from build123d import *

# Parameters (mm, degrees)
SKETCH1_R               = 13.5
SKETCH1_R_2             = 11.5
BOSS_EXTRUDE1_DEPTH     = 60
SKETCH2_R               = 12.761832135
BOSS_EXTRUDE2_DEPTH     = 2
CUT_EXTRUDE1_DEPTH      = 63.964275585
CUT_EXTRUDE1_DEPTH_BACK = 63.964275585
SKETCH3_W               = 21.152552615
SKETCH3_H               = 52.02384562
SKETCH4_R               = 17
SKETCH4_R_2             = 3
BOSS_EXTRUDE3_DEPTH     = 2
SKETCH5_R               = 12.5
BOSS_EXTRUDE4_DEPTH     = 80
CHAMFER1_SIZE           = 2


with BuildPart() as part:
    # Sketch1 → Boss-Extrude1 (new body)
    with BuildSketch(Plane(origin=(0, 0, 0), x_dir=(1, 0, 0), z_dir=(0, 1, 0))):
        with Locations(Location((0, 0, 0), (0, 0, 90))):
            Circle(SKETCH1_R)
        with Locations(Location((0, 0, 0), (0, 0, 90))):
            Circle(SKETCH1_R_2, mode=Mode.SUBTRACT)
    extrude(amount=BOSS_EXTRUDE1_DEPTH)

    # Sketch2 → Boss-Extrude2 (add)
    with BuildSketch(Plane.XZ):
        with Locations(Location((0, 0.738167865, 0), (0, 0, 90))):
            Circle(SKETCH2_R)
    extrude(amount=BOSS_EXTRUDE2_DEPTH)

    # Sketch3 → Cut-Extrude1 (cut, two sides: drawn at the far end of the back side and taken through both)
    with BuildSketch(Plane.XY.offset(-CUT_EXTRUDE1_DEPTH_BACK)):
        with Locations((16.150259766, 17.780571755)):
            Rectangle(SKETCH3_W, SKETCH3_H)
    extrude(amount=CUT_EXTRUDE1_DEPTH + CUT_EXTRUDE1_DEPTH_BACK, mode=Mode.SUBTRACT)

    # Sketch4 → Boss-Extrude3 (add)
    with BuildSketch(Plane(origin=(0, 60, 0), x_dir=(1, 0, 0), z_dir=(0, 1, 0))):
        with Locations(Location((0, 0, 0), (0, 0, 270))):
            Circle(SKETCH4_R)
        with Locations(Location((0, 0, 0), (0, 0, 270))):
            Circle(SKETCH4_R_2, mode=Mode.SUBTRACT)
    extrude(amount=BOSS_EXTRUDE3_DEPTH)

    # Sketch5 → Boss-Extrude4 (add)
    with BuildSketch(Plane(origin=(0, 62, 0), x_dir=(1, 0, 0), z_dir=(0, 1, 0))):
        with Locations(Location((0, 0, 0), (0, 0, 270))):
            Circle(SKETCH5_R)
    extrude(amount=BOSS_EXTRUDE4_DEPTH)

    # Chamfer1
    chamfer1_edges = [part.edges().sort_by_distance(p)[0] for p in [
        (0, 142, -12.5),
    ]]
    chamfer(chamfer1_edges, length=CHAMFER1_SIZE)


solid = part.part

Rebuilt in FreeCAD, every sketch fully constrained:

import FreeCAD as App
import Part
import Sketcher


def edges_at(feature, points):
    """Names of the edges that pass closest to the given points."""
    edges = feature.Shape.Edges
    near = lambda p: min(range(len(edges)), key=lambda i: edges[i].distToShape(Part.Vertex(*p))[0])
    return sorted({f"Edge{near(p) + 1}" for p in points})

doc = App.newDocument("Part")
body = doc.addObject("PartDesign::Body", "Body")

sketch1 = body.newObject("Sketcher::SketchObject", "Sketch")
sketch1.AttachmentSupport = (doc.getObject("XZ_Plane"), [""])
sketch1.MapMode = "FlatFace"
sketch1.addGeometry(Part.Circle(App.Vector(0, 0, 0), App.Vector(0, 0, 1), 14), False)
sketch1.addGeometry(Part.Circle(App.Vector(0, 0, 0), App.Vector(0, 0, 1), 12), False)
sketch1.addConstraint(Sketcher.Constraint("Coincident", 0, 3, -1, 1))
sketch1.addConstraint(Sketcher.Constraint("Coincident", 1, 3, -1, 1))
sketch1.addConstraint(Sketcher.Constraint("Diameter", 0, 27.0))
sketch1.addConstraint(Sketcher.Constraint("Diameter", 1, 23.0))
pad1 = body.newObject("PartDesign::Pad", "Pad")
pad1.Profile = sketch1
pad1.Length = 60
pad1.Reversed = True

sketch2 = body.newObject("Sketcher::SketchObject", "Sketch001")
sketch2.AttachmentSupport = (doc.getObject("XZ_Plane"), [""])
sketch2.MapMode = "FlatFace"
sketch2.addGeometry(Part.Circle(App.Vector(0, 1, 0), App.Vector(0, 0, 1), 13), False)
sketch2.addConstraint(Sketcher.Constraint("PointOnObject", 0, 3, -2))
sketch2.addConstraint(Sketcher.Constraint("Diameter", 0, 25.523664))
sketch2.addConstraint(Sketcher.Constraint("DistanceY", -1, 1, 0, 3, 0.738168))
pad2 = body.newObject("PartDesign::Pad", "Pad001")
pad2.Profile = sketch2
pad2.Length = 2

sketch3 = body.newObject("Sketcher::SketchObject", "Sketch002")
sketch3.AttachmentSupport = (doc.getObject("XY_Plane"), [""])
sketch3.MapMode = "FlatFace"
sketch3.addGeometry(Part.LineSegment(App.Vector(6, 44, 0), App.Vector(6, -8, 0)), False)
sketch3.addGeometry(Part.LineSegment(App.Vector(6, -8, 0), App.Vector(27, -8, 0)), False)
sketch3.addGeometry(Part.LineSegment(App.Vector(27, -8, 0), App.Vector(27, 44, 0)), False)
sketch3.addGeometry(Part.LineSegment(App.Vector(27, 44, 0), App.Vector(6, 44, 0)), False)
sketch3.addConstraint(Sketcher.Constraint("Coincident", 0, 2, 1, 1))
sketch3.addConstraint(Sketcher.Constraint("Coincident", 1, 2, 2, 1))
sketch3.addConstraint(Sketcher.Constraint("Coincident", 2, 2, 3, 1))
sketch3.addConstraint(Sketcher.Constraint("Coincident", 3, 2, 0, 1))
sketch3.addConstraint(Sketcher.Constraint("Vertical", 0))
sketch3.addConstraint(Sketcher.Constraint("Horizontal", 1))
sketch3.addConstraint(Sketcher.Constraint("Vertical", 2))
sketch3.addConstraint(Sketcher.Constraint("Horizontal", 3))
sketch3.addConstraint(Sketcher.Constraint("DistanceX", 1, 1, 1, 2, 21.152553))
sketch3.addConstraint(Sketcher.Constraint("DistanceY", 0, 2, 0, 1, 52.023846))
sketch3.addConstraint(Sketcher.Constraint("DistanceY", 0, 2, -1, 1, 8.231351))
sketch3.addConstraint(Sketcher.Constraint("DistanceX", -1, 1, 0, 2, 5.573983))
pocket1 = body.newObject("PartDesign::Pocket", "Pocket")
pocket1.Profile = sketch3
pocket1.Type = "ThroughAll"
pocket1.Midplane = True

sketch4 = body.newObject("Sketcher::SketchObject", "Sketch003")
sketch4.AttachmentSupport = (doc.getObject("XZ_Plane"), [""])
sketch4.MapMode = "FlatFace"
sketch4.AttachmentOffset = App.Placement(App.Vector(0, 0, -60), App.Rotation())
sketch4.addGeometry(Part.Circle(App.Vector(0, 0, 0), App.Vector(0, 0, 1), 17), False)
sketch4.addGeometry(Part.Circle(App.Vector(0, 0, 0), App.Vector(0, 0, 1), 3), False)
sketch4.addConstraint(Sketcher.Constraint("Coincident", 0, 3, -1, 1))
sketch4.addConstraint(Sketcher.Constraint("Coincident", 1, 3, -1, 1))
sketch4.addConstraint(Sketcher.Constraint("Diameter", 0, 34.0))
sketch4.addConstraint(Sketcher.Constraint("Diameter", 1, 6.0))
pad3 = body.newObject("PartDesign::Pad", "Pad002")
pad3.Profile = sketch4
pad3.Length = 2
pad3.Reversed = True

sketch5 = body.newObject("Sketcher::SketchObject", "Sketch004")
sketch5.AttachmentSupport = (doc.getObject("XZ_Plane"), [""])
sketch5.MapMode = "FlatFace"
sketch5.AttachmentOffset = App.Placement(App.Vector(0, 0, -62), App.Rotation())
sketch5.addGeometry(Part.Circle(App.Vector(0, 0, 0), App.Vector(0, 0, 1), 12), False)
sketch5.addConstraint(Sketcher.Constraint("Coincident", 0, 3, -1, 1))
sketch5.addConstraint(Sketcher.Constraint("Diameter", 0, 25.0))
pad4 = body.newObject("PartDesign::Pad", "Pad003")
pad4.Profile = sketch5
pad4.Length = 80
pad4.Reversed = True
doc.recompute()

chamfer = body.newObject("PartDesign::Chamfer", "Chamfer")
chamfer.Base = (pad4, edges_at(pad4, [(0, 142, -12.5)]))
chamfer.Size = 2

doc.recompute()
